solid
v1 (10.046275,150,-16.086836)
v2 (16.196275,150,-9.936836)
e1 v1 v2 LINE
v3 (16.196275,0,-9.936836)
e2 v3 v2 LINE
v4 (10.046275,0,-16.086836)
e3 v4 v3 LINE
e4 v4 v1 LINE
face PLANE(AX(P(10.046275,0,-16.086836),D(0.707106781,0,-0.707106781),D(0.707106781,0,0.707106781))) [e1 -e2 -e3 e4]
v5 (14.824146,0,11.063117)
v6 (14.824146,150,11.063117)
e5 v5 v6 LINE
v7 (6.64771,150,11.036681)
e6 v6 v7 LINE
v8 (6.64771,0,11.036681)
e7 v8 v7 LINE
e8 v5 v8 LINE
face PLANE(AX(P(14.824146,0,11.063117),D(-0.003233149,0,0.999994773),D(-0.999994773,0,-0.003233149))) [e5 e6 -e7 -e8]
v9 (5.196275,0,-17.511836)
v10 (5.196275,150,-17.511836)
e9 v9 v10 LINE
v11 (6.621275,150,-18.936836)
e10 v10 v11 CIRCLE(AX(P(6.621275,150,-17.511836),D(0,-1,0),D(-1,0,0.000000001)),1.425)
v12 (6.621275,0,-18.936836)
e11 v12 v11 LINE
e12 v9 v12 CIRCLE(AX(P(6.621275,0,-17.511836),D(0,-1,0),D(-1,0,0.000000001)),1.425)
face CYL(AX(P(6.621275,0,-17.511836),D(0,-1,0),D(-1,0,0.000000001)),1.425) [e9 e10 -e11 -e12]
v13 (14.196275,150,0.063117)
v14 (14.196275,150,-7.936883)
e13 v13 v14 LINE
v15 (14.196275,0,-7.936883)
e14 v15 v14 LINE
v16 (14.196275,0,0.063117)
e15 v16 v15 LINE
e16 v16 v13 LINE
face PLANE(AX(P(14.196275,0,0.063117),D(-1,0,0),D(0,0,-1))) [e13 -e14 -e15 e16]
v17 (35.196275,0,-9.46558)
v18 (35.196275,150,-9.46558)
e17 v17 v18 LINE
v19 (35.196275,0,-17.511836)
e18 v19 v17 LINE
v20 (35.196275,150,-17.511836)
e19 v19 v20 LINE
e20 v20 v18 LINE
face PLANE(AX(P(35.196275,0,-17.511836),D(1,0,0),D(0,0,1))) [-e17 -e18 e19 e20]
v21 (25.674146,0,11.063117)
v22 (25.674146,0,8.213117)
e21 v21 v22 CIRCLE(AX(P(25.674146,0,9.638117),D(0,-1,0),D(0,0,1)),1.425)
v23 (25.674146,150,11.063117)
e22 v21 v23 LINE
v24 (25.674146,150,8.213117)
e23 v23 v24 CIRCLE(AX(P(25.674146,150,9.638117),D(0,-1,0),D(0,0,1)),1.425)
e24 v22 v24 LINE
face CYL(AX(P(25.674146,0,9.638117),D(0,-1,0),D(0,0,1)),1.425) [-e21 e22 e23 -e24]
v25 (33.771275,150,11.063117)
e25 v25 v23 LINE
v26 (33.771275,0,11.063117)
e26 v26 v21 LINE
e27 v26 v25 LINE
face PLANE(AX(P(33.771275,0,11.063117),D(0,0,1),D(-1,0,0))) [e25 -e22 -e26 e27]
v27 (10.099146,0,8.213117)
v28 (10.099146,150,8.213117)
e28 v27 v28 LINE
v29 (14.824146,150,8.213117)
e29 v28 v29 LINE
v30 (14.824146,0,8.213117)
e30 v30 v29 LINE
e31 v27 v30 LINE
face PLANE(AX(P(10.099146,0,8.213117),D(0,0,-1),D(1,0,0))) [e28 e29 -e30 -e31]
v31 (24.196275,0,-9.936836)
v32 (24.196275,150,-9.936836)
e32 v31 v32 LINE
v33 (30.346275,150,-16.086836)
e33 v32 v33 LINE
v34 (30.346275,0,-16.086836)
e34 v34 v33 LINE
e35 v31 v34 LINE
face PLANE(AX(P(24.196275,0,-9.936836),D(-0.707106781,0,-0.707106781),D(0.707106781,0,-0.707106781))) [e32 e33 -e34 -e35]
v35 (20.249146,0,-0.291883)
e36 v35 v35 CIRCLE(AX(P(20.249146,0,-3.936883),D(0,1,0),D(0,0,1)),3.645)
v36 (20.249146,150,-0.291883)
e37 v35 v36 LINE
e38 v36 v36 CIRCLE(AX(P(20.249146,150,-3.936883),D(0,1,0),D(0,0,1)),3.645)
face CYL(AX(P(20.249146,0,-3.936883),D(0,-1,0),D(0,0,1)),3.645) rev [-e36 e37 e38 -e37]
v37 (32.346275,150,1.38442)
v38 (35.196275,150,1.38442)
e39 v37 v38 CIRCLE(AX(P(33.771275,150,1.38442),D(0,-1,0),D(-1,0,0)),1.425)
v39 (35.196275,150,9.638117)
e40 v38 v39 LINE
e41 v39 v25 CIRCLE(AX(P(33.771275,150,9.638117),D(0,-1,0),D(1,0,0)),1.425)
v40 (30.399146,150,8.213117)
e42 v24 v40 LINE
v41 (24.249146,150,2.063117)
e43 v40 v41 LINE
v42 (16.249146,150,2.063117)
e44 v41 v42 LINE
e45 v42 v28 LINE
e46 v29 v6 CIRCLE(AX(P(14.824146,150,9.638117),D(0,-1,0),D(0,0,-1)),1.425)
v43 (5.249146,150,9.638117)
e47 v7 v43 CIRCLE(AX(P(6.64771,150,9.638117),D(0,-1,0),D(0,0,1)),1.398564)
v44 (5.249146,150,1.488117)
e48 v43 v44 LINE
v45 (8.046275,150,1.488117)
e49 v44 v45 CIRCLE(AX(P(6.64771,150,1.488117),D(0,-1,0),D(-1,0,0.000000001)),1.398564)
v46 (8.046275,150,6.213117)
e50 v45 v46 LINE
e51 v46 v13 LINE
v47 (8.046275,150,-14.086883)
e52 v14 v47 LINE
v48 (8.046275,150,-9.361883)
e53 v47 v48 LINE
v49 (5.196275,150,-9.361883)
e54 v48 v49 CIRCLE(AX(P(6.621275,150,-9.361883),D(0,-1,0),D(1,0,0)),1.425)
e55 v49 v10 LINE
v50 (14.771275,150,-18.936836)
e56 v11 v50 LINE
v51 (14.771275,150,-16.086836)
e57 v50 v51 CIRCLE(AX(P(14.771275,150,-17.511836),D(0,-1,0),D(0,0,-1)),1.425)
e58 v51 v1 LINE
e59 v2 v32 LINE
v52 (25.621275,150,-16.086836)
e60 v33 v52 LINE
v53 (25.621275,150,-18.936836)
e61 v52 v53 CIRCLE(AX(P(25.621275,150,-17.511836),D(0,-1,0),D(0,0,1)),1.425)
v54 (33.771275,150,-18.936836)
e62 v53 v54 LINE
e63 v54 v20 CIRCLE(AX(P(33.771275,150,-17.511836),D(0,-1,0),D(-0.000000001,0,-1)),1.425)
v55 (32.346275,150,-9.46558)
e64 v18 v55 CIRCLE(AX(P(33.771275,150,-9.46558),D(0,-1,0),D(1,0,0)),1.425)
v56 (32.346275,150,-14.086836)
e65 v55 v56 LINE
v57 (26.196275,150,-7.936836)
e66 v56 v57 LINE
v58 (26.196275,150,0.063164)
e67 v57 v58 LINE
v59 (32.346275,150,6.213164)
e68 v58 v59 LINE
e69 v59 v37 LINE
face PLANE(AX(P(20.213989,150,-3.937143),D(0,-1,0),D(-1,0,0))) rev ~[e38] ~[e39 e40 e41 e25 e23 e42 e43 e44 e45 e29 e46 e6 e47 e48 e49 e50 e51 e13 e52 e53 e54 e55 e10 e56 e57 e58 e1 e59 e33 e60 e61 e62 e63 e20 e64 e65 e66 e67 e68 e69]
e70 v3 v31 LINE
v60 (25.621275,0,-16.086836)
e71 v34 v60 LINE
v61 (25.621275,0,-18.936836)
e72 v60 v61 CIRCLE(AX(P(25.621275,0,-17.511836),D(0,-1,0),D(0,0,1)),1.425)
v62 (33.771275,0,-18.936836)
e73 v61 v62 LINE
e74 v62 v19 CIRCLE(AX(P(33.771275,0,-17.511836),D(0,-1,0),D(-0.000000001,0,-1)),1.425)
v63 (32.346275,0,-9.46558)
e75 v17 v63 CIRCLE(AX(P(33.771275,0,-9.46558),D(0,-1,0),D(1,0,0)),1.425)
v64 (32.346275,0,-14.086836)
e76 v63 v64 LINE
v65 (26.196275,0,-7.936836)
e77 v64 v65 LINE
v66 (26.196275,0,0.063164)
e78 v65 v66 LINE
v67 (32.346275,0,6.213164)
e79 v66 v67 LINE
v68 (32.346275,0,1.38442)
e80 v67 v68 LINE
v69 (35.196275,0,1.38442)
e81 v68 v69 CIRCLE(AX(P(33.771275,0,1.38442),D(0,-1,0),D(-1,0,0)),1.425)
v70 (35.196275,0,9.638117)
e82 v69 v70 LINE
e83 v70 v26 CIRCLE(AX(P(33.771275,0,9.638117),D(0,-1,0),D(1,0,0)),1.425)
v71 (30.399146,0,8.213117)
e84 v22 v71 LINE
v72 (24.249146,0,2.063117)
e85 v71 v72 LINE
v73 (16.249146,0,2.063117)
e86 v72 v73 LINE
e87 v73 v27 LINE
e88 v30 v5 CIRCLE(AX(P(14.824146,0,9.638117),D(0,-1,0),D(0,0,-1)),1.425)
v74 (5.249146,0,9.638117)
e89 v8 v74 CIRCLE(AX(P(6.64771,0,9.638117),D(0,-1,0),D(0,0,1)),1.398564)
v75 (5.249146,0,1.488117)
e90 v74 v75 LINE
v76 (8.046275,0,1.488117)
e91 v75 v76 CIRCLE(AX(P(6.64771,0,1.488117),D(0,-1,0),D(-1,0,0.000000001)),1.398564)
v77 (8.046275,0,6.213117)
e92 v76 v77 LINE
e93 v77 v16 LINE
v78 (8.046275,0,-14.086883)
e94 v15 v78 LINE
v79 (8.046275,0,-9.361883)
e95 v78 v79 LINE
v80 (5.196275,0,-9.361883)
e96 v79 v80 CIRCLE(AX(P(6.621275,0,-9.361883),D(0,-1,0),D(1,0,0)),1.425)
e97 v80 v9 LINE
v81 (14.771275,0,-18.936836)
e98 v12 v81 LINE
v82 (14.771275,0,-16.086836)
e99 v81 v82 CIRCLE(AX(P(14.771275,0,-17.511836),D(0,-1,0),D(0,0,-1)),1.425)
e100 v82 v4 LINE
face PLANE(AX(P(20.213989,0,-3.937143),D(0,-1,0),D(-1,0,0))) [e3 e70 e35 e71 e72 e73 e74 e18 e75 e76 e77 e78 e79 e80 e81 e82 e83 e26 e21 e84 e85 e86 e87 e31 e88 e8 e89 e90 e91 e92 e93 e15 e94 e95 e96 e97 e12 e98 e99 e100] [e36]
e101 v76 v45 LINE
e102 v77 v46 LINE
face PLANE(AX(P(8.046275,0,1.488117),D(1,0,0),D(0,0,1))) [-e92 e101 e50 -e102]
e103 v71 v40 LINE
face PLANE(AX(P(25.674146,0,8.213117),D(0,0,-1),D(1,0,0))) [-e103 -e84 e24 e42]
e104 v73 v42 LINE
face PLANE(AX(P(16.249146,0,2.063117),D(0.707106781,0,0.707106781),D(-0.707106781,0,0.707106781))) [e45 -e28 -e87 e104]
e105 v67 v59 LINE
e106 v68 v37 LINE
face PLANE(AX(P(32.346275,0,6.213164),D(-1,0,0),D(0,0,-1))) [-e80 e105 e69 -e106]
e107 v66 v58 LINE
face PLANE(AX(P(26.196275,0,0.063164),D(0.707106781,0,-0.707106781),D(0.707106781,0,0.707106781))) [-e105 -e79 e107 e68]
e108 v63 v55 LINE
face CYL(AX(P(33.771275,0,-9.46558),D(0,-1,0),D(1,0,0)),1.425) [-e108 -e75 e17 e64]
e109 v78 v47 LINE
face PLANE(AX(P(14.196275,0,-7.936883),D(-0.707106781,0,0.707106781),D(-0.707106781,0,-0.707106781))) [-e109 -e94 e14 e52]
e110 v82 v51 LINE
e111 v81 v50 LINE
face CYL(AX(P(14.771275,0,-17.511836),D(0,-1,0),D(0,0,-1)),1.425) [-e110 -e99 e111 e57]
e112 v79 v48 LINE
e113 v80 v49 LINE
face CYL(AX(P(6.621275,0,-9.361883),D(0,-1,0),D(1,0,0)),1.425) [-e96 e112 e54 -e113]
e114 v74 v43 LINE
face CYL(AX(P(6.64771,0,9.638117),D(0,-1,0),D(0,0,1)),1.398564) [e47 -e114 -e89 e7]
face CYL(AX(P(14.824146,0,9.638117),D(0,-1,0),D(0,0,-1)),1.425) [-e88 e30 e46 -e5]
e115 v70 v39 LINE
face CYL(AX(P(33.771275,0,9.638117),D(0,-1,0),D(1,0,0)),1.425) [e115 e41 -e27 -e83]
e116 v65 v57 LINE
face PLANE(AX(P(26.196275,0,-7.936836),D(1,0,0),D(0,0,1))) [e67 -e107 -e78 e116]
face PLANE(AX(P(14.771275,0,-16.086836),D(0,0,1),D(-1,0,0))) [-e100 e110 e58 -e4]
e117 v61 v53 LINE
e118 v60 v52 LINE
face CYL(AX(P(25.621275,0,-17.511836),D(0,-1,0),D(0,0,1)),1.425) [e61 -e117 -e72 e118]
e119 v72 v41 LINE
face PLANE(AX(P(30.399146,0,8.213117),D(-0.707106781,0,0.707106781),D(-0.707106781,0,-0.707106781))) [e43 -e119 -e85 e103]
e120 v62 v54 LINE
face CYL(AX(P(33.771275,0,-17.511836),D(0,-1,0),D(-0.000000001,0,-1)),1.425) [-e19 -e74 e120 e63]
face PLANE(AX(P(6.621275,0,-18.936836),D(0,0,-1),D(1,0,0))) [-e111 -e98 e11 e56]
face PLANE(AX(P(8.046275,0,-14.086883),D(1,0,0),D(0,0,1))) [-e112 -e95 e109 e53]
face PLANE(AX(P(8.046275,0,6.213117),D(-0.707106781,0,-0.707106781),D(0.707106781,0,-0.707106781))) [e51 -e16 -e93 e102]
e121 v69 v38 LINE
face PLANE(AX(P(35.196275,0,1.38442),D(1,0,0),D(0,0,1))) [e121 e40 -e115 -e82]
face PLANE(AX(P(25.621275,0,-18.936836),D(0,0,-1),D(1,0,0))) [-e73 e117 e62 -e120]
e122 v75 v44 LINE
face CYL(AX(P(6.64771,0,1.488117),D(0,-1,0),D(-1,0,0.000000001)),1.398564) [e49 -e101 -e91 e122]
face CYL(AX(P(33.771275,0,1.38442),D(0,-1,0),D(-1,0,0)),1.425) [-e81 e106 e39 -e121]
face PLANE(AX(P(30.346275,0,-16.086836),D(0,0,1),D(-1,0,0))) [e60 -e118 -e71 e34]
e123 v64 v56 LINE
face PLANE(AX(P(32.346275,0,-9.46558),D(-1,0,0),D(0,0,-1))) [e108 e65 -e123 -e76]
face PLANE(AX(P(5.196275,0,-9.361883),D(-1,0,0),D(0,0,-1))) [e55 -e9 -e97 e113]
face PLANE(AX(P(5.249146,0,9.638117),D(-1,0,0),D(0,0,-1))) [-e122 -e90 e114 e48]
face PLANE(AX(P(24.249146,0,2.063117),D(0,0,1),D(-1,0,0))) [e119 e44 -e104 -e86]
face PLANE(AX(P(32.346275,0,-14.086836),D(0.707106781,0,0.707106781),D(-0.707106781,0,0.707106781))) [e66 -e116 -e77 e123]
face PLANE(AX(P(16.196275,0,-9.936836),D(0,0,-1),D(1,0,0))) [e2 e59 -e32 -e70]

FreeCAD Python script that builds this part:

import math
import FreeCAD as App
import Part
import Sketcher
from FreeCAD import Vector

doc = App.newDocument("Part")
body = doc.addObject("PartDesign::Body", "Body")

# Sketch on XZ plane
sketch1 = doc.addObject("Sketcher::SketchObject", "Sketch")
body.addObject(sketch1)
sketch1.AttachmentSupport = (doc.XZ_Plane, [""])
sketch1.MapMode = "FlatFace"
sketch1.addGeometry(Part.LineSegment(Vector(30.399146, 8.213117, 0), Vector(25.674146, 8.213117, 0)), False)
sketch1.addGeometry(Part.ArcOfCircle(Part.Circle(Vector(25.674146, 9.638117, 0), Vector(0, 0, 1), 1.425), math.radians(90), math.radians(270)), False)
sketch1.addGeometry(Part.LineSegment(Vector(25.674146, 11.063117, 0), Vector(33.771275, 11.063117, 0)), False)
sketch1.addGeometry(Part.ArcOfCircle(Part.Circle(Vector(33.771275, 9.638117, 0), Vector(0, 0, 1), 1.425), math.radians(0), math.radians(90)), False)
sketch1.addGeometry(Part.LineSegment(Vector(35.196275, 9.638117, 0), Vector(35.196275, 1.38442, 0)), False)
sketch1.addGeometry(Part.ArcOfCircle(Part.Circle(Vector(33.771275, 1.38442, 0), Vector(0, 0, 1), 1.425), math.radians(180), math.radians(360)), False)
sketch1.addGeometry(Part.LineSegment(Vector(32.346275, 1.38442, 0), Vector(32.346275, 6.213164, 0)), False)
sketch1.addGeometry(Part.LineSegment(Vector(32.346275, 6.213164, 0), Vector(26.196275, 0.063164, 0)), False)
sketch1.addGeometry(Part.LineSegment(Vector(26.196275, 0.063164, 0), Vector(26.196275, -7.936836, 0)), False)
sketch1.addGeometry(Part.LineSegment(Vector(26.196275, -7.936836, 0), Vector(32.346275, -14.086836, 0)), False)
sketch1.addGeometry(Part.LineSegment(Vector(32.346275, -14.086836, 0), Vector(32.346275, -9.46558, 0)), False)
sketch1.addGeometry(Part.ArcOfCircle(Part.Circle(Vector(33.771275, -9.46558, 0), Vector(0, 0, 1), 1.425), math.radians(0), math.radians(180)), False)
sketch1.addGeometry(Part.LineSegment(Vector(35.196275, -9.46558, 0), Vector(35.196275, -17.511836, 0)), False)
sketch1.addGeometry(Part.ArcOfCircle(Part.Circle(Vector(33.771275, -17.511836, 0), Vector(0, 0, 1), 1.425), math.radians(-90), math.radians(0)), False)
sketch1.addGeometry(Part.LineSegment(Vector(33.771275, -18.936836, 0), Vector(25.621275, -18.936836, 0)), False)
sketch1.addGeometry(Part.ArcOfCircle(Part.Circle(Vector(25.621275, -17.511836, 0), Vector(0, 0, 1), 1.425), math.radians(90), math.radians(270)), False)
sketch1.addGeometry(Part.LineSegment(Vector(25.621275, -16.086836, 0), Vector(30.346275, -16.086836, 0)), False)
sketch1.addGeometry(Part.LineSegment(Vector(30.346275, -16.086836, 0), Vector(24.196275, -9.936836, 0)), False)
sketch1.addGeometry(Part.LineSegment(Vector(24.196275, -9.936836, 0), Vector(16.196275, -9.936836, 0)), False)
sketch1.addGeometry(Part.LineSegment(Vector(16.196275, -9.936836, 0), Vector(10.046275, -16.086836, 0)), False)
sketch1.addGeometry(Part.LineSegment(Vector(10.046275, -16.086836, 0), Vector(14.771275, -16.086836, 0)), False)
sketch1.addGeometry(Part.ArcOfCircle(Part.Circle(Vector(14.771275, -17.511836, 0), Vector(0, 0, 1), 1.425), math.radians(-90), math.radians(90)), False)
sketch1.addGeometry(Part.LineSegment(Vector(14.771275, -18.936836, 0), Vector(6.621275, -18.936836, 0)), False)
sketch1.addGeometry(Part.ArcOfCircle(Part.Circle(Vector(6.621275, -17.511836, 0), Vector(0, 0, 1), 1.425), math.radians(180), math.radians(270)), False)
sketch1.addGeometry(Part.LineSegment(Vector(5.196275, -17.511836, 0), Vector(5.196275, -9.361883, 0)), False)
sketch1.addGeometry(Part.ArcOfCircle(Part.Circle(Vector(6.621275, -9.361883, 0), Vector(0, 0, 1), 1.425), math.radians(0), math.radians(180)), False)
sketch1.addGeometry(Part.LineSegment(Vector(8.046275, -9.361883, 0), Vector(8.046275, -14.086883, 0)), False)
sketch1.addGeometry(Part.LineSegment(Vector(8.046275, -14.086883, 0), Vector(14.196275, -7.936883, 0)), False)
sketch1.addGeometry(Part.LineSegment(Vector(14.196275, -7.936883, 0), Vector(14.196275, 0.063117, 0)), False)
sketch1.addGeometry(Part.LineSegment(Vector(14.196275, 0.063117, 0), Vector(8.046275, 6.213117, 0)), False)
sketch1.addGeometry(Part.LineSegment(Vector(8.046275, 6.213117, 0), Vector(8.046275, 1.488117, 0)), False)
sketch1.addGeometry(Part.ArcOfCircle(Part.Circle(Vector(6.64771, 1.488117, 0), Vector(0, 0, 1), 1.398564), math.radians(180), math.radians(360)), False)
sketch1.addGeometry(Part.LineSegment(Vector(5.249146, 1.488117, 0), Vector(5.249146, 9.638117, 0)), False)
sketch1.addGeometry(Part.ArcOfCircle(Part.Circle(Vector(6.64771, 9.638117, 0), Vector(0, 0, 1), 1.398564), math.radians(90), math.radians(180)), False)
sketch1.addGeometry(Part.LineSegment(Vector(6.64771, 11.036681, 0), Vector(14.824146, 11.063117, 0)), False)
sketch1.addGeometry(Part.ArcOfCircle(Part.Circle(Vector(14.824146, 9.638117, 0), Vector(0, 0, 1), 1.425), math.radians(-90), math.radians(90)), False)
sketch1.addGeometry(Part.LineSegment(Vector(14.824146, 8.213117, 0), Vector(10.099146, 8.213117, 0)), False)
sketch1.addGeometry(Part.LineSegment(Vector(10.099146, 8.213117, 0), Vector(16.249146, 2.063117, 0)), False)
sketch1.addGeometry(Part.LineSegment(Vector(16.249146, 2.063117, 0), Vector(24.249146, 2.063117, 0)), False)
sketch1.addGeometry(Part.LineSegment(Vector(24.249146, 2.063117, 0), Vector(30.399146, 8.213117, 0)), False)
sketch1.addGeometry(Part.Circle(Vector(20.249146, -3.936883, 0), Vector(0, 0, 1), 3.645), False)
sketch1.addConstraint(Sketcher.Constraint("Tangent", 0, 2, 1, 2))
sketch1.addConstraint(Sketcher.Constraint("Tangent", 1, 1, 2, 1))
sketch1.addConstraint(Sketcher.Constraint("Tangent", 2, 2, 3, 2))
sketch1.addConstraint(Sketcher.Constraint("Tangent", 3, 1, 4, 1))
sketch1.addConstraint(Sketcher.Constraint("Tangent", 4, 2, 5, 2))
sketch1.addConstraint(Sketcher.Constraint("Tangent", 5, 1, 6, 1))
sketch1.addConstraint(Sketcher.Constraint("Coincident", 6, 2, 7, 1))
sketch1.addConstraint(Sketcher.Constraint("Coincident", 7, 2, 8, 1))
sketch1.addConstraint(Sketcher.Constraint("Coincident", 8, 2, 9, 1))
sketch1.addConstraint(Sketcher.Constraint("Coincident", 9, 2, 10, 1))
sketch1.addConstraint(Sketcher.Constraint("Tangent", 10, 2, 11, 2))
sketch1.addConstraint(Sketcher.Constraint("Tangent", 11, 1, 12, 1))
sketch1.addConstraint(Sketcher.Constraint("Tangent", 12, 2, 13, 2))
sketch1.addConstraint(Sketcher.Constraint("Tangent", 13, 1, 14, 1))
sketch1.addConstraint(Sketcher.Constraint("Tangent", 14, 2, 15, 2))
sketch1.addConstraint(Sketcher.Constraint("Tangent", 15, 1, 16, 1))
sketch1.addConstraint(Sketcher.Constraint("Coincident", 16, 2, 17, 1))
sketch1.addConstraint(Sketcher.Constraint("Coincident", 17, 2, 18, 1))
sketch1.addConstraint(Sketcher.Constraint("Coincident", 18, 2, 19, 1))
sketch1.addConstraint(Sketcher.Constraint("Coincident", 19, 2, 20, 1))
sketch1.addConstraint(Sketcher.Constraint("Tangent", 20, 2, 21, 2))
sketch1.addConstraint(Sketcher.Constraint("Tangent", 21, 1, 22, 1))
sketch1.addConstraint(Sketcher.Constraint("Tangent", 22, 2, 23, 2))
sketch1.addConstraint(Sketcher.Constraint("Tangent", 23, 1, 24, 1))
sketch1.addConstraint(Sketcher.Constraint("Tangent", 24, 2, 25, 2))
sketch1.addConstraint(Sketcher.Constraint("Tangent", 25, 1, 26, 1))
sketch1.addConstraint(Sketcher.Constraint("Coincident", 26, 2, 27, 1))
sketch1.addConstraint(Sketcher.Constraint("Coincident", 27, 2, 28, 1))
sketch1.addConstraint(Sketcher.Constraint("Coincident", 28, 2, 29, 1))
sketch1.addConstraint(Sketcher.Constraint("Coincident", 29, 2, 30, 1))
sketch1.addConstraint(Sketcher.Constraint("Tangent", 30, 2, 31, 2))
sketch1.addConstraint(Sketcher.Constraint("Tangent", 31, 1, 32, 1))
sketch1.addConstraint(Sketcher.Constraint("Tangent", 32, 2, 33, 2))
sketch1.addConstraint(Sketcher.Constraint("Coincident", 33, 1, 34, 1))
sketch1.addConstraint(Sketcher.Constraint("Coincident", 34, 2, 35, 2))
sketch1.addConstraint(Sketcher.Constraint("Tangent", 35, 1, 36, 1))
sketch1.addConstraint(Sketcher.Constraint("Coincident", 36, 2, 37, 1))
sketch1.addConstraint(Sketcher.Constraint("Coincident", 37, 2, 38, 1))
sketch1.addConstraint(Sketcher.Constraint("Coincident", 38, 2, 39, 1))
sketch1.addConstraint(Sketcher.Constraint("Coincident", 39, 2, 0, 1))
sketch1.addConstraint(Sketcher.Constraint("Horizontal", 0))
sketch1.addConstraint(Sketcher.Constraint("Horizontal", 2))
sketch1.addConstraint(Sketcher.Constraint("Vertical", 4))
sketch1.addConstraint(Sketcher.Constraint("Vertical", 6))
sketch1.addConstraint(Sketcher.Constraint("Vertical", 8))
sketch1.addConstraint(Sketcher.Constraint("Vertical", 10))
sketch1.addConstraint(Sketcher.Constraint("Vertical", 12))
sketch1.addConstraint(Sketcher.Constraint("Horizontal", 14))
sketch1.addConstraint(Sketcher.Constraint("Horizontal", 16))
sketch1.addConstraint(Sketcher.Constraint("Horizontal", 18))
sketch1.addConstraint(Sketcher.Constraint("Horizontal", 20))
sketch1.addConstraint(Sketcher.Constraint("Horizontal", 22))
sketch1.addConstraint(Sketcher.Constraint("Vertical", 24))
sketch1.addConstraint(Sketcher.Constraint("Vertical", 26))
sketch1.addConstraint(Sketcher.Constraint("Vertical", 28))
sketch1.addConstraint(Sketcher.Constraint("Vertical", 30))
sketch1.addConstraint(Sketcher.Constraint("Vertical", 32))
sketch1.addConstraint(Sketcher.Constraint("Horizontal", 36))
sketch1.addConstraint(Sketcher.Constraint("Horizontal", 38))
sketch1.addConstraint(Sketcher.Constraint("Equal", 1, 3))
sketch1.addConstraint(Sketcher.Constraint("Equal", 3, 5))
sketch1.addConstraint(Sketcher.Constraint("Equal", 5, 11))
sketch1.addConstraint(Sketcher.Constraint("Equal", 11, 13))
sketch1.addConstraint(Sketcher.Constraint("Equal", 13, 15))
sketch1.addConstraint(Sketcher.Constraint("Equal", 15, 21))
sketch1.addConstraint(Sketcher.Constraint("Equal", 21, 23))
sketch1.addConstraint(Sketcher.Constraint("Equal", 23, 25))
sketch1.addConstraint(Sketcher.Constraint("Equal", 31, 33))
sketch1.addConstraint(Sketcher.Constraint("Equal", 25, 35))
sketch1.addConstraint(Sketcher.Constraint("Perpendicular", 7, 9))
sketch1.addConstraint(Sketcher.Constraint("Parallel", 9, 17))
sketch1.addConstraint(Sketcher.Constraint("Perpendicular", 17, 19))
sketch1.addConstraint(Sketcher.Constraint("Parallel", 19, 27))
sketch1.addConstraint(Sketcher.Constraint("Perpendicular", 27, 29))
sketch1.addConstraint(Sketcher.Constraint("Parallel", 29, 37))
sketch1.addConstraint(Sketcher.Constraint("Perpendicular", 37, 39))
sketch1.addConstraint(Sketcher.Constraint("Horizontal", 15, 3, 21, 3))
sketch1.addConstraint(Sketcher.Constraint("Horizontal", 3, 3, 33, 3))
sketch1.addConstraint(Sketcher.Constraint("Horizontal", 33, 3, 35, 3))
sketch1.addConstraint(Sketcher.Constraint("Vertical", 5, 3, 11, 3))
sketch1.addConstraint(Sketcher.Constraint("Vertical", 26, 2, 29, 2))
sketch1.addConstraint(Sketcher.Constraint("Vertical", 31, 3, 33, 1))
sketch1.addConstraint(Sketcher.Constraint("Vertical", 35, 3, 34, 2))
sketch1.addConstraint(Sketcher.Constraint("Equal", 0, 16))
sketch1.addConstraint(Sketcher.Constraint("Equal", 16, 20))
sketch1.addConstraint(Sketcher.Constraint("Equal", 14, 22))
sketch1.addConstraint(Sketcher.Constraint("Equal", 20, 36))
sketch1.addConstraint(Sketcher.Constraint("Equal", 18, 38))
sketch1.addConstraint(Sketcher.Constraint("Equal", 38, 8))
sketch1.addConstraint(Sketcher.Constraint("Equal", 36, 26))
sketch1.addConstraint(Sketcher.Constraint("Equal", 8, 28))
sketch1.addConstraint(Sketcher.Constraint("Equal", 26, 30))
sketch1.addConstraint(Sketcher.Constraint("Equal", 22, 32))
sketch1.addConstraint(Sketcher.Constraint("Equal", 7, 9))
sketch1.addConstraint(Sketcher.Constraint("Equal", 9, 17))
sketch1.addConstraint(Sketcher.Constraint("Equal", 19, 27))
sketch1.addConstraint(Sketcher.Constraint("Equal", 29, 37))
sketch1.addConstraint(Sketcher.Constraint("Diameter", 40, 7.29))
sketch1.addConstraint(Sketcher.Constraint("DistanceX", 18, 2, 18, 1, 8.0))
sketch1.addConstraint(Sketcher.Constraint("Radius", 1, 1.425))
sketch1.addConstraint(Sketcher.Constraint("DistanceX", 21, 3, 13, 3, 19.0))
sketch1.addConstraint(Sketcher.Constraint("DistanceX", 8, 2, 11, 1, 9.0))
sketch1.addConstraint(Sketcher.Constraint("DistanceY", 15, 1, 9, 2, 2.0))
sketch1.addConstraint(Sketcher.Constraint("DistanceX", 16, 2, 9, 2, 2.0))
sketch1.addConstraint(Sketcher.Constraint("DistanceY", 27, 2, 40, 3, 4.0))
sketch1.addConstraint(Sketcher.Constraint("DistanceX", 37, 2, 40, 3, 4.0))
sketch1.addConstraint(Sketcher.Constraint("DistanceY", 11, 3, 5, 3, 10.85))
sketch1.addConstraint(Sketcher.Constraint("Radius", 31, 1.398564))
sketch1.addConstraint(Sketcher.Constraint("DistanceX", 32, 2, 34, 2, 9.575))
sketch1.addConstraint(Sketcher.Constraint("DistanceY", 4, 2, 4, 1, 8.253697))
sketch1.addConstraint(Sketcher.Constraint("DistanceY", 6, 1, 6, 2, 4.828744))
sketch1.addConstraint(Sketcher.Constraint("DistanceY", -1, 1, 5, 3, 1.38442))
sketch1.addConstraint(Sketcher.Constraint("DistanceX", -1, 1, 31, 3, 6.64771))
pad1 = doc.addObject("PartDesign::Pad", "Pad")
body.addObject(pad1)
pad1.Profile = sketch1
pad1.Length = 150
pad1.Reversed = True

doc.recompute()
